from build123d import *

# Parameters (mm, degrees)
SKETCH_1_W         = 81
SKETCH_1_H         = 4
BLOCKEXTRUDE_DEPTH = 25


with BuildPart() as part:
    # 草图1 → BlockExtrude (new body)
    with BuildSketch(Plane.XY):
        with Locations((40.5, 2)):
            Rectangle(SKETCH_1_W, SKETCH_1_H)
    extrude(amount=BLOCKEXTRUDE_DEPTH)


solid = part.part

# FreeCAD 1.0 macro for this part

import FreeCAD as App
import Part
import Sketcher
Q = App.Units.Quantity


def add_polygon(sketch, points):
    """Adds a closed chain of lines whose ends are joined by coincident constraints."""
    first, n = sketch.GeometryCount, len(points)
    for a, b in zip(points, points[1:] + points[:1]):
        sketch.addGeometry(Part.LineSegment(App.Vector(*a, 0), App.Vector(*b, 0)), False)
    for i in range(n):
        sketch.addConstraint(Sketcher.Constraint("Coincident", first + i, 2, first + (i + 1) % n, 1))

doc = App.newDocument("Part")
params = doc.addObject("Spreadsheet::Sheet", "Params")
for row, (alias, value) in enumerate([
    ("sketch1_width", "81 mm"),
    ("sketch1_height", "4 mm"),
    ("pad1_length", "25 mm"),
], start=1):
    params.set(f"A{row}", alias)
    params.set(f"B{row}", "=" + value)
    params.setAlias(f"B{row}", alias)

body = doc.addObject("PartDesign::Body", "Body")

sketch1 = doc.addObject("Sketcher::SketchObject", "Sketch")
body.addObject(sketch1)
sketch1.AttachmentSupport = (doc.XY_Plane, [""])
sketch1.MapMode = "FlatFace"
add_polygon(sketch1, [(0, 4), (0, 0), (81, 0), (81, 4)])
sketch1.addConstraint(Sketcher.Constraint("Vertical", 0))
sketch1.addConstraint(Sketcher.Constraint("Horizontal", 1))
sketch1.addConstraint(Sketcher.Constraint("Vertical", 2))
sketch1.addConstraint(Sketcher.Constraint("Horizontal", 3))
sketch1.addConstraint(Sketcher.Constraint("Coincident", 0, 2, -1, 1))
sketch1.addConstraint(Sketcher.Constraint("DistanceX", 1, 1, 1, 2, Q("81 mm")))
sketch1.addConstraint(Sketcher.Constraint("DistanceY", 0, 2, 0, 1, Q("4 mm")))
sketch1.setExpression("Constraints[9]", "Params.sketch1_width")
sketch1.setExpression("Constraints[10]", "Params.sketch1_height")
pad1 = doc.addObject("PartDesign::Pad", "Pad")
body.addObject(pad1)
pad1.Profile = sketch1
pad1.setExpression("Length", "Params.pad1_length")

doc.recompute()
